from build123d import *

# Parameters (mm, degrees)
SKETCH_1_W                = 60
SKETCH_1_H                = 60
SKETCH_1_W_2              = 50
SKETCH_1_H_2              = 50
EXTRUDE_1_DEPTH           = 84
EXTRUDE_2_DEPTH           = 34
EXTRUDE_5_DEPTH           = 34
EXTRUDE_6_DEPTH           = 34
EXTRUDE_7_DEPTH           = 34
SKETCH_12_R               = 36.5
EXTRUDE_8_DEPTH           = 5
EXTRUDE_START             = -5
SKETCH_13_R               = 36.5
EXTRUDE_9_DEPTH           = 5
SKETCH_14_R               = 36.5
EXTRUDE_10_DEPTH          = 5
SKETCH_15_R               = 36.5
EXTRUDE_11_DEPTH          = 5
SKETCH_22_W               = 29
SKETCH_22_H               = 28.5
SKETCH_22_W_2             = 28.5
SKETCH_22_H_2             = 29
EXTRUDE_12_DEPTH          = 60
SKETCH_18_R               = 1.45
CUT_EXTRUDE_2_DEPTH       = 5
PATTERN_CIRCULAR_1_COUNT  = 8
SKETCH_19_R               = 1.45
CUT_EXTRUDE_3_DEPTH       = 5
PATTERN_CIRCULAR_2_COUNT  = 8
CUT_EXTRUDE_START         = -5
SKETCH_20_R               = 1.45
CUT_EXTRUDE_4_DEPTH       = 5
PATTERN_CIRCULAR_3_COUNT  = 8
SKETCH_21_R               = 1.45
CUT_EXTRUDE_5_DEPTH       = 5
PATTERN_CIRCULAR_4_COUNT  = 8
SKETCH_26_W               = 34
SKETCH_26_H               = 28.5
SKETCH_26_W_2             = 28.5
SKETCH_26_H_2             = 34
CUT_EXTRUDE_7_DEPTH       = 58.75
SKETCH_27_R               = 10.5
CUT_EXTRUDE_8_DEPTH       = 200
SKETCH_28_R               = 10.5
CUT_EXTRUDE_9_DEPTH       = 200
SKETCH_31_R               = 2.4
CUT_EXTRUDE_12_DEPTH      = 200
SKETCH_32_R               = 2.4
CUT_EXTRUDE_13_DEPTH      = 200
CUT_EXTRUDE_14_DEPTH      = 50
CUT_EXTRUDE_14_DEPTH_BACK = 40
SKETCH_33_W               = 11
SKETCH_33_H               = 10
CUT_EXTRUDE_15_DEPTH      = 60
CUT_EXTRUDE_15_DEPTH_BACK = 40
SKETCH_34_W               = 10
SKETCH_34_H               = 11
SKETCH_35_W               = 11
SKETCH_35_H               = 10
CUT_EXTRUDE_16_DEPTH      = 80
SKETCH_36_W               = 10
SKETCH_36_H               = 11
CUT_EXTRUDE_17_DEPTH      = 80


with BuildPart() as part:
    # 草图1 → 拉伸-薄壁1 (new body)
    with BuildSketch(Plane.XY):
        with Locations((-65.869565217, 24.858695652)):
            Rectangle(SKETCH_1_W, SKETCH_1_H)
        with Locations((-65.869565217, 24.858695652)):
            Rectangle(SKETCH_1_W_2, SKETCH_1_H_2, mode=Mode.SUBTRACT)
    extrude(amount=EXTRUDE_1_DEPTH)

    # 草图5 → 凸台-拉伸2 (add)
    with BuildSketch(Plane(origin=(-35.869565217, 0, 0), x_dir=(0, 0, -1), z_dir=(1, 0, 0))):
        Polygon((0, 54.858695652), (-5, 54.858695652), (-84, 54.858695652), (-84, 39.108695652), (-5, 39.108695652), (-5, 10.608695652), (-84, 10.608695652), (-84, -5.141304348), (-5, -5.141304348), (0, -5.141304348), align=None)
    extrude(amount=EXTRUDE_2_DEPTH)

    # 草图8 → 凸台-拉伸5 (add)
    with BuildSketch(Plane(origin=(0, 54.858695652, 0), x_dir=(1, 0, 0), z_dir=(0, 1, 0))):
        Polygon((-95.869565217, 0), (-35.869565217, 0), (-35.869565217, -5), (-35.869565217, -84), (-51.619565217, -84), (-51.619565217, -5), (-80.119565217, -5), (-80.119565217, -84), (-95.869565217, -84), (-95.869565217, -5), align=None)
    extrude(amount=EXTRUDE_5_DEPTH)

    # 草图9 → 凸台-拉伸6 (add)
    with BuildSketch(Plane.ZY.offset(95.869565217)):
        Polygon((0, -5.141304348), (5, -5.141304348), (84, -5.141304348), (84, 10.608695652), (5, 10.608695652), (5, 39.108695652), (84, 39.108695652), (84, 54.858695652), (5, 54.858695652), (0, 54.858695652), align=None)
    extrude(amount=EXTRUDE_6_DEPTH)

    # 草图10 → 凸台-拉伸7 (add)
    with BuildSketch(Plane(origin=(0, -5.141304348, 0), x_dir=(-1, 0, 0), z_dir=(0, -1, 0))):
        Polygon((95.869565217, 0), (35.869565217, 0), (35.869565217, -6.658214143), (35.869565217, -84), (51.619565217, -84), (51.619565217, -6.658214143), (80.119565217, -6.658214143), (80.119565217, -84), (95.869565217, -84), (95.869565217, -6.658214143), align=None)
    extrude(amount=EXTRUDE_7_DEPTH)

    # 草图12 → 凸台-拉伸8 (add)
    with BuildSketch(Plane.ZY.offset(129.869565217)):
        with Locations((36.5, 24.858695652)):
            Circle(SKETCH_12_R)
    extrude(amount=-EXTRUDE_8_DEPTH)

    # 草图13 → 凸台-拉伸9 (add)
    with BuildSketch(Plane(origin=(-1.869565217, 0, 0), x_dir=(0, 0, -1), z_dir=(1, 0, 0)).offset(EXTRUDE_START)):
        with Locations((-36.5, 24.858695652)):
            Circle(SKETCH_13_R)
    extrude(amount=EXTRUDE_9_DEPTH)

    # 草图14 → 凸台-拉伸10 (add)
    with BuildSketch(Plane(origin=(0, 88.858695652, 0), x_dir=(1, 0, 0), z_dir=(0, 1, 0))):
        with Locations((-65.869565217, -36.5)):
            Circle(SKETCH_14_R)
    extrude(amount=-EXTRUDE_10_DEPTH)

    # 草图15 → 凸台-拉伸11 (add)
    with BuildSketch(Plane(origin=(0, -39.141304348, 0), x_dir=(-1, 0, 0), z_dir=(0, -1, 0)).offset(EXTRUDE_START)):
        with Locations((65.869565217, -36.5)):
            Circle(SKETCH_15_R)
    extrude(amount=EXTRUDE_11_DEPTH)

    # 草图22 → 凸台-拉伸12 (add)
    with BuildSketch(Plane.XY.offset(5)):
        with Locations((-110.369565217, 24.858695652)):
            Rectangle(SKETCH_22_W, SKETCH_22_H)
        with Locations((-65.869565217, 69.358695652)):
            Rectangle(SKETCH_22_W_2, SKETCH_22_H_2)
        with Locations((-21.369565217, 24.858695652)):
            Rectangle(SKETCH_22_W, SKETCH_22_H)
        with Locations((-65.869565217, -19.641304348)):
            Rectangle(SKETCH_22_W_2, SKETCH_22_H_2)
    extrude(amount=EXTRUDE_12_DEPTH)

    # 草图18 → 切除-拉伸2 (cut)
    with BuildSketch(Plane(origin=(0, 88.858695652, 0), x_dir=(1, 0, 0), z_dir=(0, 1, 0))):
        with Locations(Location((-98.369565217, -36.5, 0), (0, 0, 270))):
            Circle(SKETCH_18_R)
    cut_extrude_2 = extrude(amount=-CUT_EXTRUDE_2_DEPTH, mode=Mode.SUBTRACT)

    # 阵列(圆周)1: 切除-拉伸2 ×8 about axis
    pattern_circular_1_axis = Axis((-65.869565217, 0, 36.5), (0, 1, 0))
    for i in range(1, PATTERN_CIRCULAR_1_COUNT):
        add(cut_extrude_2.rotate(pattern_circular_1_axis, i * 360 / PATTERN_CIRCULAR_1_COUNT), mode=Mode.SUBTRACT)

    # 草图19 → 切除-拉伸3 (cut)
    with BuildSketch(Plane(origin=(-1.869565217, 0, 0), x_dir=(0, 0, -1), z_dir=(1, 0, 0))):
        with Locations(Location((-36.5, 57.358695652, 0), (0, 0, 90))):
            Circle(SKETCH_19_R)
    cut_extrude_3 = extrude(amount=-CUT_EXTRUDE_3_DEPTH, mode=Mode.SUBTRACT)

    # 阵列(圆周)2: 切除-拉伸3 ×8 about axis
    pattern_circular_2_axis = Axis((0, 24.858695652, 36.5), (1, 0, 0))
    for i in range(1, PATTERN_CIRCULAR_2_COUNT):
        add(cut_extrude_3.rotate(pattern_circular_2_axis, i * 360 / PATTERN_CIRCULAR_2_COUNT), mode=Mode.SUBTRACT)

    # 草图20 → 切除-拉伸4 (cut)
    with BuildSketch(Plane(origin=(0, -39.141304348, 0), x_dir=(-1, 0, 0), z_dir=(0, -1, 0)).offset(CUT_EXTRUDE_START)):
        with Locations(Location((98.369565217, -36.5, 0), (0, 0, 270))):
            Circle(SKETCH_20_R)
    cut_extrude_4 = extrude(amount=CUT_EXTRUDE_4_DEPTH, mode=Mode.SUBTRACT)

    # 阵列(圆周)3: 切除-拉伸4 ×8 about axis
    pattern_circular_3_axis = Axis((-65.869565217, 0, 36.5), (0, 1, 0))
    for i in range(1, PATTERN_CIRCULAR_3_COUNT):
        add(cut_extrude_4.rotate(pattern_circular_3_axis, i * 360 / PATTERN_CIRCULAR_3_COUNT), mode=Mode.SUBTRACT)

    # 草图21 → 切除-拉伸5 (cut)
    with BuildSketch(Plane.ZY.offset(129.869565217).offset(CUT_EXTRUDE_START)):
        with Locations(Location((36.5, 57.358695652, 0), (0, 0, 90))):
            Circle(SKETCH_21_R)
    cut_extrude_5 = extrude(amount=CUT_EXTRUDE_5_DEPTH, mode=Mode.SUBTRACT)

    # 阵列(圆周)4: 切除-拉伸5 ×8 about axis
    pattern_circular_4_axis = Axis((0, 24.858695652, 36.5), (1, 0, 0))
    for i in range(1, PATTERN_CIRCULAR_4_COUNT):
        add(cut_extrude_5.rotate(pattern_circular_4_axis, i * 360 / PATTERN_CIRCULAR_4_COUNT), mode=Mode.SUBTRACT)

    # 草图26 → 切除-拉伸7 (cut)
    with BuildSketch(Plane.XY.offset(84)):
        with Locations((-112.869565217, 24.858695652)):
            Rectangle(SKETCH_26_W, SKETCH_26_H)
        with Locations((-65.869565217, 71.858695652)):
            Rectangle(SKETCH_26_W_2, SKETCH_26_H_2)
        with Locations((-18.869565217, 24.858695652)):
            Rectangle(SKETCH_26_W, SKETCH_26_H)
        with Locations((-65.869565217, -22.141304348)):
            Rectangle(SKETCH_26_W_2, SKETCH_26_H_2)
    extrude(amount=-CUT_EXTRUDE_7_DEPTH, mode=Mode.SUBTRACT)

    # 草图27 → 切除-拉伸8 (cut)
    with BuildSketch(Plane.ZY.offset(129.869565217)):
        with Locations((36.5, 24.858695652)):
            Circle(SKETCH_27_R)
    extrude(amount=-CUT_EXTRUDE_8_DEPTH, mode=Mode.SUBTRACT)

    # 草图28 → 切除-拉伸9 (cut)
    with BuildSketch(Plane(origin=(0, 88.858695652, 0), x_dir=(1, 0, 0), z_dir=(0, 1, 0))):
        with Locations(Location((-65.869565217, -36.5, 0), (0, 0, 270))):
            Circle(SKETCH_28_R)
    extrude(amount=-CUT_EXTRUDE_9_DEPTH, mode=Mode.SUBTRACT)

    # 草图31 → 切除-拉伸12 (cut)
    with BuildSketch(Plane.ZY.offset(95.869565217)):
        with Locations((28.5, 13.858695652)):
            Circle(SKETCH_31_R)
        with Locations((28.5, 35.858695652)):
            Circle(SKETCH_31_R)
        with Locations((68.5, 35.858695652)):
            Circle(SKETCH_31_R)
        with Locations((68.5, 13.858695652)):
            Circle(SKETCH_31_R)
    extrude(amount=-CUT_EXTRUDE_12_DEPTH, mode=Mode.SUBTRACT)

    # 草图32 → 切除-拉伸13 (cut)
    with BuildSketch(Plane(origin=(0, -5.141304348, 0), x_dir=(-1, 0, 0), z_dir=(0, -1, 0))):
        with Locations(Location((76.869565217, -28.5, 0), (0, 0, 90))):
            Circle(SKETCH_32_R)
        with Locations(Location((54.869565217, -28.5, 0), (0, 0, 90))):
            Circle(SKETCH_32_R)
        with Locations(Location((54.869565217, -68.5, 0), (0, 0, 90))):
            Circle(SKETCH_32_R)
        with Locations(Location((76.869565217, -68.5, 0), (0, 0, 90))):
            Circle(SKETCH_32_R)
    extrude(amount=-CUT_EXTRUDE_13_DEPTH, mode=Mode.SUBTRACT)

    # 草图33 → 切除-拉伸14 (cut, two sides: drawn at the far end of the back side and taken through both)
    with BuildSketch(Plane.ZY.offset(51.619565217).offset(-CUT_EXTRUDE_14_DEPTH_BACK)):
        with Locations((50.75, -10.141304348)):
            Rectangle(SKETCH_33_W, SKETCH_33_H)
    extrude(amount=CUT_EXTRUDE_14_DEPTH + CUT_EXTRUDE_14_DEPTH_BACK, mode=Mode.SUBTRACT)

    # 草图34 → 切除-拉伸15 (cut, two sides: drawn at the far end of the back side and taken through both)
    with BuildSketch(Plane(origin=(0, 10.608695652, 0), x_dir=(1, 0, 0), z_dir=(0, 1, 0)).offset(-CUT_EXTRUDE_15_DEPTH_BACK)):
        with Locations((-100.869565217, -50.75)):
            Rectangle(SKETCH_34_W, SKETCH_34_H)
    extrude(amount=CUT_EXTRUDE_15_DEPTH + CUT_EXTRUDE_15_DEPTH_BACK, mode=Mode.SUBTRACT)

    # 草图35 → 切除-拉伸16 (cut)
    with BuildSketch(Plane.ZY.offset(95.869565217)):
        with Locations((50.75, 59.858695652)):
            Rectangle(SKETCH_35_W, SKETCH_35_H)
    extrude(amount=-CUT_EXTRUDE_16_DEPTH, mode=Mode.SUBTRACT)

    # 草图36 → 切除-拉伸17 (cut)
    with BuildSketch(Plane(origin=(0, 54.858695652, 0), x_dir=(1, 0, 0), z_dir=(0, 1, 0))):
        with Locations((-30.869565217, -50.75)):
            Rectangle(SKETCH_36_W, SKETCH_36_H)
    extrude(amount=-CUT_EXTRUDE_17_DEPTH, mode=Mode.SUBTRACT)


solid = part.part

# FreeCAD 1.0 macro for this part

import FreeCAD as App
import Part
import Sketcher
from FreeCAD import Vector
Q = App.Units.Quantity

doc = App.newDocument("Part")
body = doc.addObject("PartDesign::Body", "Body")

sketch1 = body.newObject("Sketcher::SketchObject", "Sketch")
sketch1.AttachmentSupport = (doc.getObject("XY_Plane"), [""])
sketch1.MapMode = "FlatFace"
sketch1.addGeometry(Part.LineSegment(Vector(-96, 55, 0), Vector(-96, -5, 0)), False)
sketch1.addGeometry(Part.LineSegment(Vector(-96, -5, 0), Vector(-36, -5, 0)), False)
sketch1.addGeometry(Part.LineSegment(Vector(-36, -5, 0), Vector(-36, 55, 0)), False)
sketch1.addGeometry(Part.LineSegment(Vector(-36, 55, 0), Vector(-96, 55, 0)), False)
sketch1.addGeometry(Part.LineSegment(Vector(-41, 0, 0), Vector(-91, 0, 0)), False)
sketch1.addGeometry(Part.LineSegment(Vector(-91, 0, 0), Vector(-91, 50, 0)), False)
sketch1.addGeometry(Part.LineSegment(Vector(-91, 50, 0), Vector(-41, 50, 0)), False)
sketch1.addGeometry(Part.LineSegment(Vector(-41, 50, 0), Vector(-41, 0, 0)), False)
sketch1.addConstraint(Sketcher.Constraint("Coincident", 0, 2, 1, 1))
sketch1.addConstraint(Sketcher.Constraint("Coincident", 1, 2, 2, 1))
sketch1.addConstraint(Sketcher.Constraint("Coincident", 2, 2, 3, 1))
sketch1.addConstraint(Sketcher.Constraint("Coincident", 3, 2, 0, 1))
sketch1.addConstraint(Sketcher.Constraint("Coincident", 4, 2, 5, 1))
sketch1.addConstraint(Sketcher.Constraint("Coincident", 5, 2, 6, 1))
sketch1.addConstraint(Sketcher.Constraint("Coincident", 6, 2, 7, 1))
sketch1.addConstraint(Sketcher.Constraint("Coincident", 7, 2, 4, 1))
sketch1.addConstraint(Sketcher.Constraint("Vertical", 0))
sketch1.addConstraint(Sketcher.Constraint("Horizontal", 1))
sketch1.addConstraint(Sketcher.Constraint("Vertical", 2))
sketch1.addConstraint(Sketcher.Constraint("Horizontal", 3))
sketch1.addConstraint(Sketcher.Constraint("Horizontal", 4))
sketch1.addConstraint(Sketcher.Constraint("Vertical", 5))
sketch1.addConstraint(Sketcher.Constraint("Horizontal", 6))
sketch1.addConstraint(Sketcher.Constraint("Vertical", 7))
sketch1.addConstraint(Sketcher.Constraint("Equal", 3, 0))
sketch1.addConstraint(Sketcher.Constraint("Equal", 6, 5))
sketch1.addConstraint(Sketcher.Constraint("DistanceX", 1, 1, 1, 2, Q("60 mm")))
sketch1.addConstraint(Sketcher.Constraint("DistanceX", 4, 2, 4, 1, Q("50 mm")))
sketch1.addConstraint(Sketcher.Constraint("DistanceX", 0, 2, 4, 2, Q("5 mm")))
sketch1.addConstraint(Sketcher.Constraint("DistanceY", 0, 2, 4, 2, Q("5 mm")))
sketch1.addConstraint(Sketcher.Constraint("DistanceX", 0, 2, -1, 1, Q("95.869565 mm")))
sketch1.addConstraint(Sketcher.Constraint("DistanceY", 0, 2, -1, 1, Q("5.141304 mm")))
pad1 = body.newObject("PartDesign::Pad", "Pad")
pad1.Profile = sketch1
pad1.Length = 84

sketch2 = body.newObject("Sketcher::SketchObject", "Sketch001")
sketch2.AttachmentSupport = (doc.getObject("YZ_Plane"), [""])
sketch2.MapMode = "FlatFace"
sketch2.AttachmentOffset = App.Placement(Vector(0, 0, -35.869565), App.Rotation())
sketch2.addGeometry(Part.LineSegment(Vector(55, 0, 0), Vector(55, 84, 0)), False)
sketch2.addGeometry(Part.LineSegment(Vector(55, 84, 0), Vector(39, 84, 0)), False)
sketch2.addGeometry(Part.LineSegment(Vector(39, 84, 0), Vector(39, 5, 0)), False)
sketch2.addGeometry(Part.LineSegment(Vector(39, 5, 0), Vector(11, 5, 0)), False)
sketch2.addGeometry(Part.LineSegment(Vector(11, 5, 0), Vector(11, 84, 0)), False)
sketch2.addGeometry(Part.LineSegment(Vector(11, 84, 0), Vector(-5, 84, 0)), False)
sketch2.addGeometry(Part.LineSegment(Vector(-5, 84, 0), Vector(-5, 0, 0)), False)
sketch2.addGeometry(Part.LineSegment(Vector(-5, 0, 0), Vector(55, 0, 0)), False)
sketch2.addConstraint(Sketcher.Constraint("Coincident", 0, 2, 1, 1))
sketch2.addConstraint(Sketcher.Constraint("Coincident", 1, 2, 2, 1))
sketch2.addConstraint(Sketcher.Constraint("Coincident", 2, 2, 3, 1))
sketch2.addConstraint(Sketcher.Constraint("Coincident", 3, 2, 4, 1))
sketch2.addConstraint(Sketcher.Constraint("Coincident", 4, 2, 5, 1))
sketch2.addConstraint(Sketcher.Constraint("Coincident", 5, 2, 6, 1))
sketch2.addConstraint(Sketcher.Constraint("Coincident", 6, 2, 7, 1))
sketch2.addConstraint(Sketcher.Constraint("Coincident", 7, 2, 0, 1))
sketch2.addConstraint(Sketcher.Constraint("Vertical", 0))
sketch2.addConstraint(Sketcher.Constraint("Horizontal", 1))
sketch2.addConstraint(Sketcher.Constraint("Vertical", 2))
sketch2.addConstraint(Sketcher.Constraint("Horizontal", 3))
sketch2.addConstraint(Sketcher.Constraint("Vertical", 4))
sketch2.addConstraint(Sketcher.Constraint("Horizontal", 5))
sketch2.addConstraint(Sketcher.Constraint("Vertical", 6))
sketch2.addConstraint(Sketcher.Constraint("Horizontal", 7))
sketch2.addConstraint(Sketcher.Constraint("PointOnObject", 6, 2, -1))
sketch2.addConstraint(Sketcher.Constraint("Horizontal", 1, 2, 4, 2))
sketch2.addConstraint(Sketcher.Constraint("Equal", 1, 5))
sketch2.addConstraint(Sketcher.Constraint("DistanceX", 7, 1, 7, 2, Q("60 mm")))
sketch2.addConstraint(Sketcher.Constraint("DistanceY", 0, 1, 0, 2, Q("84 mm")))
sketch2.addConstraint(Sketcher.Constraint("DistanceY", 2, 2, 2, 1, Q("79 mm")))
sketch2.addConstraint(Sketcher.Constraint("DistanceX", 3, 2, 3, 1, Q("28.5 mm")))
sketch2.addConstraint(Sketcher.Constraint("DistanceX", -1, 1, 0, 2, Q("54.858696 mm")))
pad2 = body.newObject("PartDesign::Pad", "Pad001")
pad2.Profile = sketch2
pad2.Length = 34

sketch3 = body.newObject("Sketcher::SketchObject", "Sketch002")
sketch3.AttachmentSupport = (doc.getObject("XZ_Plane"), [""])
sketch3.MapMode = "FlatFace"
sketch3.AttachmentOffset = App.Placement(Vector(0, 0, -54.858696), App.Rotation())
sketch3.addGeometry(Part.LineSegment(Vector(-36, 0, 0), Vector(-96, 0, 0)), False)
sketch3.addGeometry(Part.LineSegment(Vector(-96, 0, 0), Vector(-96, 84, 0)), False)
sketch3.addGeometry(Part.LineSegment(Vector(-96, 84, 0), Vector(-80, 84, 0)), False)
sketch3.addGeometry(Part.LineSegment(Vector(-80, 84, 0), Vector(-80, 5, 0)), False)
sketch3.addGeometry(Part.LineSegment(Vector(-80, 5, 0), Vector(-52, 5, 0)), False)
sketch3.addGeometry(Part.LineSegment(Vector(-52, 5, 0), Vector(-52, 84, 0)), False)
sketch3.addGeometry(Part.LineSegment(Vector(-52, 84, 0), Vector(-36, 84, 0)), False)
sketch3.addGeometry(Part.LineSegment(Vector(-36, 84, 0), Vector(-36, 0, 0)), False)
sketch3.addConstraint(Sketcher.Constraint("Coincident", 0, 2, 1, 1))
sketch3.addConstraint(Sketcher.Constraint("Coincident", 1, 2, 2, 1))
sketch3.addConstraint(Sketcher.Constraint("Coincident", 2, 2, 3, 1))
sketch3.addConstraint(Sketcher.Constraint("Coincident", 3, 2, 4, 1))
sketch3.addConstraint(Sketcher.Constraint("Coincident", 4, 2, 5, 1))
sketch3.addConstraint(Sketcher.Constraint("Coincident", 5, 2, 6, 1))
sketch3.addConstraint(Sketcher.Constraint("Coincident", 6, 2, 7, 1))
sketch3.addConstraint(Sketcher.Constraint("Coincident", 7, 2, 0, 1))
sketch3.addConstraint(Sketcher.Constraint("Horizontal", 0))
sketch3.addConstraint(Sketcher.Constraint("Vertical", 1))
sketch3.addConstraint(Sketcher.Constraint("Horizontal", 2))
sketch3.addConstraint(Sketcher.Constraint("Vertical", 3))
sketch3.addConstraint(Sketcher.Constraint("Horizontal", 4))
sketch3.addConstraint(Sketcher.Constraint("Vertical", 5))
sketch3.addConstraint(Sketcher.Constraint("Horizontal", 6))
sketch3.addConstraint(Sketcher.Constraint("Vertical", 7))
sketch3.addConstraint(Sketcher.Constraint("PointOnObject", 0, 2, -1))
sketch3.addConstraint(Sketcher.Constraint("Horizontal", 2, 2, 5, 2))
sketch3.addConstraint(Sketcher.Constraint("Equal", 2, 6))
sketch3.addConstraint(Sketcher.Constraint("DistanceX", 0, 2, 0, 1, Q("60 mm")))
sketch3.addConstraint(Sketcher.Constraint("DistanceY", 1, 1, 1, 2, Q("84 mm")))
sketch3.addConstraint(Sketcher.Constraint("DistanceY", 3, 2, 3, 1, Q("79 mm")))
sketch3.addConstraint(Sketcher.Constraint("DistanceX", 4, 1, 4, 2, Q("28.5 mm")))
sketch3.addConstraint(Sketcher.Constraint("DistanceX", 0, 2, -1, 1, Q("95.869565 mm")))
pad3 = body.newObject("PartDesign::Pad", "Pad002")
pad3.Profile = sketch3
pad3.Length = 34
pad3.Reversed = True

sketch4 = body.newObject("Sketcher::SketchObject", "Sketch003")
sketch4.AttachmentSupport = (doc.getObject("YZ_Plane"), [""])
sketch4.MapMode = "FlatFace"
sketch4.AttachmentOffset = App.Placement(Vector(0, 0, -95.869565), App.Rotation())
sketch4.addGeometry(Part.LineSegment(Vector(-5, 0, 0), Vector(-5, 84, 0)), False)
sketch4.addGeometry(Part.LineSegment(Vector(-5, 84, 0), Vector(11, 84, 0)), False)
sketch4.addGeometry(Part.LineSegment(Vector(11, 84, 0), Vector(11, 5, 0)), False)
sketch4.addGeometry(Part.LineSegment(Vector(11, 5, 0), Vector(39, 5, 0)), False)
sketch4.addGeometry(Part.LineSegment(Vector(39, 5, 0), Vector(39, 84, 0)), False)
sketch4.addGeometry(Part.LineSegment(Vector(39, 84, 0), Vector(55, 84, 0)), False)
sketch4.addGeometry(Part.LineSegment(Vector(55, 84, 0), Vector(55, 0, 0)), False)
sketch4.addGeometry(Part.LineSegment(Vector(55, 0, 0), Vector(-5, 0, 0)), False)
sketch4.addConstraint(Sketcher.Constraint("Coincident", 0, 2, 1, 1))
sketch4.addConstraint(Sketcher.Constraint("Coincident", 1, 2, 2, 1))
sketch4.addConstraint(Sketcher.Constraint("Coincident", 2, 2, 3, 1))
sketch4.addConstraint(Sketcher.Constraint("Coincident", 3, 2, 4, 1))
sketch4.addConstraint(Sketcher.Constraint("Coincident", 4, 2, 5, 1))
sketch4.addConstraint(Sketcher.Constraint("Coincident", 5, 2, 6, 1))
sketch4.addConstraint(Sketcher.Constraint("Coincident", 6, 2, 7, 1))
sketch4.addConstraint(Sketcher.Constraint("Coincident", 7, 2, 0, 1))
sketch4.addConstraint(Sketcher.Constraint("Vertical", 0))
sketch4.addConstraint(Sketcher.Constraint("Horizontal", 1))
sketch4.addConstraint(Sketcher.Constraint("Vertical", 2))
sketch4.addConstraint(Sketcher.Constraint("Horizontal", 3))
sketch4.addConstraint(Sketcher.Constraint("Vertical", 4))
sketch4.addConstraint(Sketcher.Constraint("Horizontal", 5))
sketch4.addConstraint(Sketcher.Constraint("Vertical", 6))
sketch4.addConstraint(Sketcher.Constraint("Horizontal", 7))
sketch4.addConstraint(Sketcher.Constraint("PointOnObject", 6, 2, -1))
sketch4.addConstraint(Sketcher.Constraint("Horizontal", 1, 2, 4, 2))
sketch4.addConstraint(Sketcher.Constraint("Equal", 1, 5))
sketch4.addConstraint(Sketcher.Constraint("DistanceX", 7, 2, 7, 1, Q("60 mm")))
sketch4.addConstraint(Sketcher.Constraint("DistanceY", 0, 1, 0, 2, Q("84 mm")))
sketch4.addConstraint(Sketcher.Constraint("DistanceY", 2, 2, 2, 1, Q("79 mm")))
sketch4.addConstraint(Sketcher.Constraint("DistanceX", 3, 1, 3, 2, Q("28.5 mm")))
sketch4.addConstraint(Sketcher.Constraint("DistanceX", 0, 2, -1, 1, Q("5.141304 mm")))
pad4 = body.newObject("PartDesign::Pad", "Pad003")
pad4.Profile = sketch4
pad4.Length = 34
pad4.Reversed = True

sketch5 = body.newObject("Sketcher::SketchObject", "Sketch004")
sketch5.AttachmentSupport = (doc.getObject("XZ_Plane"), [""])
sketch5.MapMode = "FlatFace"
sketch5.AttachmentOffset = App.Placement(Vector(0, 0, 5.141304), App.Rotation())
sketch5.addGeometry(Part.LineSegment(Vector(-96, 0, 0), Vector(-36, 0, 0)), False)
sketch5.addGeometry(Part.LineSegment(Vector(-36, 0, 0), Vector(-36, 84, 0)), False)
sketch5.addGeometry(Part.LineSegment(Vector(-36, 84, 0), Vector(-52, 84, 0)), False)
sketch5.addGeometry(Part.LineSegment(Vector(-52, 84, 0), Vector(-52, 7, 0)), False)
sketch5.addGeometry(Part.LineSegment(Vector(-52, 7, 0), Vector(-80, 7, 0)), False)
sketch5.addGeometry(Part.LineSegment(Vector(-80, 7, 0), Vector(-80, 84, 0)), False)
sketch5.addGeometry(Part.LineSegment(Vector(-80, 84, 0), Vector(-96, 84, 0)), False)
sketch5.addGeometry(Part.LineSegment(Vector(-96, 84, 0), Vector(-96, 0, 0)), False)
sketch5.addConstraint(Sketcher.Constraint("Coincident", 0, 2, 1, 1))
sketch5.addConstraint(Sketcher.Constraint("Coincident", 1, 2, 2, 1))
sketch5.addConstraint(Sketcher.Constraint("Coincident", 2, 2, 3, 1))
sketch5.addConstraint(Sketcher.Constraint("Coincident", 3, 2, 4, 1))
sketch5.addConstraint(Sketcher.Constraint("Coincident", 4, 2, 5, 1))
sketch5.addConstraint(Sketcher.Constraint("Coincident", 5, 2, 6, 1))
sketch5.addConstraint(Sketcher.Constraint("Coincident", 6, 2, 7, 1))
sketch5.addConstraint(Sketcher.Constraint("Coincident", 7, 2, 0, 1))
sketch5.addConstraint(Sketcher.Constraint("Horizontal", 0))
sketch5.addConstraint(Sketcher.Constraint("Vertical", 1))
sketch5.addConstraint(Sketcher.Constraint("Horizontal", 2))
sketch5.addConstraint(Sketcher.Constraint("Vertical", 3))
sketch5.addConstraint(Sketcher.Constraint("Horizontal", 4))
sketch5.addConstraint(Sketcher.Constraint("Vertical", 5))
sketch5.addConstraint(Sketcher.Constraint("Horizontal", 6))
sketch5.addConstraint(Sketcher.Constraint("Vertical", 7))
sketch5.addConstraint(Sketcher.Constraint("PointOnObject", 0, 2, -1))
sketch5.addConstraint(Sketcher.Constraint("Horizontal", 2, 2, 5, 2))
sketch5.addConstraint(Sketcher.Constraint("Equal", 2, 6))
sketch5.addConstraint(Sketcher.Constraint("DistanceX", 0, 1, 0, 2, Q("60 mm")))
sketch5.addConstraint(Sketcher.Constraint("DistanceY", 1, 1, 1, 2, Q("84 mm")))
sketch5.addConstraint(Sketcher.Constraint("DistanceX", 4, 2, 4, 1, Q("28.5 mm")))
sketch5.addConstraint(Sketcher.Constraint("DistanceY", 3, 2, 3, 1, Q("77.341786 mm")))
sketch5.addConstraint(Sketcher.Constraint("DistanceX", 0, 2, -1, 1, Q("35.869565 mm")))
pad5 = body.newObject("PartDesign::Pad", "Pad004")
pad5.Profile = sketch5
pad5.Length = 34

sketch6 = body.newObject("Sketcher::SketchObject", "Sketch005")
sketch6.AttachmentSupport = (doc.getObject("YZ_Plane"), [""])
sketch6.MapMode = "FlatFace"
sketch6.AttachmentOffset = App.Placement(Vector(0, 0, -129.869565), App.Rotation())
sketch6.addGeometry(Part.Circle(Vector(25, 36, 0), Vector(0, 0, 1), 36), False)
sketch6.addConstraint(Sketcher.Constraint("Diameter", 0, Q("73 mm")))
sketch6.addConstraint(Sketcher.Constraint("DistanceY", -1, 1, 0, 3, Q("36.5 mm")))
sketch6.addConstraint(Sketcher.Constraint("DistanceX", -1, 1, 0, 3, Q("24.858696 mm")))
pad6 = body.newObject("PartDesign::Pad", "Pad005")
pad6.Profile = sketch6
pad6.Length = 5

sketch7 = body.newObject("Sketcher::SketchObject", "Sketch006")
sketch7.AttachmentSupport = (doc.getObject("YZ_Plane"), [""])
sketch7.MapMode = "FlatFace"
sketch7.AttachmentOffset = App.Placement(Vector(0, 0, -6.869565), App.Rotation())
sketch7.addGeometry(Part.Circle(Vector(25, 36, 0), Vector(0, 0, 1), 36), False)
sketch7.addConstraint(Sketcher.Constraint("Diameter", 0, Q("73 mm")))
sketch7.addConstraint(Sketcher.Constraint("DistanceY", -1, 1, 0, 3, Q("36.5 mm")))
sketch7.addConstraint(Sketcher.Constraint("DistanceX", -1, 1, 0, 3, Q("24.858696 mm")))
pad7 = body.newObject("PartDesign::Pad", "Pad006")
pad7.Profile = sketch7
pad7.Length = 5

sketch8 = body.newObject("Sketcher::SketchObject", "Sketch007")
sketch8.AttachmentSupport = (doc.getObject("XZ_Plane"), [""])
sketch8.MapMode = "FlatFace"
sketch8.AttachmentOffset = App.Placement(Vector(0, 0, -88.858696), App.Rotation())
sketch8.addGeometry(Part.Circle(Vector(-66, 36, 0), Vector(0, 0, 1), 36), False)
sketch8.addConstraint(Sketcher.Constraint("Diameter", 0, Q("73 mm")))
sketch8.addConstraint(Sketcher.Constraint("DistanceY", -1, 1, 0, 3, Q("36.5 mm")))
sketch8.addConstraint(Sketcher.Constraint("DistanceX", 0, 3, -1, 1, Q("65.869565 mm")))
pad8 = body.newObject("PartDesign::Pad", "Pad007")
pad8.Profile = sketch8
pad8.Length = 5

sketch9 = body.newObject("Sketcher::SketchObject", "Sketch008")
sketch9.AttachmentSupport = (doc.getObject("XZ_Plane"), [""])
sketch9.MapMode = "FlatFace"
sketch9.AttachmentOffset = App.Placement(Vector(0, 0, 34.141304), App.Rotation())
sketch9.addGeometry(Part.Circle(Vector(-66, 36, 0), Vector(0, 0, 1), 36), False)
sketch9.addConstraint(Sketcher.Constraint("Diameter", 0, Q("73 mm")))
sketch9.addConstraint(Sketcher.Constraint("DistanceY", -1, 1, 0, 3, Q("36.5 mm")))
sketch9.addConstraint(Sketcher.Constraint("DistanceX", 0, 3, -1, 1, Q("65.869565 mm")))
pad9 = body.newObject("PartDesign::Pad", "Pad008")
pad9.Profile = sketch9
pad9.Length = 5

sketch10 = body.newObject("Sketcher::SketchObject", "Sketch009")
sketch10.AttachmentSupport = (doc.getObject("XY_Plane"), [""])
sketch10.MapMode = "FlatFace"
sketch10.AttachmentOffset = App.Placement(Vector(0, 0, 5), App.Rotation())
sketch10.addGeometry(Part.LineSegment(Vector(-125, 39, 0), Vector(-125, 11, 0)), False)
sketch10.addGeometry(Part.LineSegment(Vector(-125, 11, 0), Vector(-96, 11, 0)), False)
sketch10.addGeometry(Part.LineSegment(Vector(-96, 11, 0), Vector(-96, 39, 0)), False)
sketch10.addGeometry(Part.LineSegment(Vector(-96, 39, 0), Vector(-125, 39, 0)), False)
sketch10.addGeometry(Part.LineSegment(Vector(-80, 84, 0), Vector(-80, 55, 0)), False)
sketch10.addGeometry(Part.LineSegment(Vector(-80, 55, 0), Vector(-52, 55, 0)), False)
sketch10.addGeometry(Part.LineSegment(Vector(-52, 55, 0), Vector(-52, 84, 0)), False)
sketch10.addGeometry(Part.LineSegment(Vector(-52, 84, 0), Vector(-80, 84, 0)), False)
sketch10.addGeometry(Part.LineSegment(Vector(-36, 39, 0), Vector(-36, 11, 0)), False)
sketch10.addGeometry(Part.LineSegment(Vector(-36, 11, 0), Vector(-7, 11, 0)), False)
sketch10.addGeometry(Part.LineSegment(Vector(-7, 11, 0), Vector(-7, 39, 0)), False)
sketch10.addGeometry(Part.LineSegment(Vector(-7, 39, 0), Vector(-36, 39, 0)), False)
sketch10.addGeometry(Part.LineSegment(Vector(-80, -5, 0), Vector(-80, -34, 0)), False)
sketch10.addGeometry(Part.LineSegment(Vector(-80, -34, 0), Vector(-52, -34, 0)), False)
sketch10.addGeometry(Part.LineSegment(Vector(-52, -34, 0), Vector(-52, -5, 0)), False)
sketch10.addGeometry(Part.LineSegment(Vector(-52, -5, 0), Vector(-80, -5, 0)), False)
sketch10.addConstraint(Sketcher.Constraint("Coincident", 0, 2, 1, 1))
sketch10.addConstraint(Sketcher.Constraint("Coincident", 1, 2, 2, 1))
sketch10.addConstraint(Sketcher.Constraint("Coincident", 2, 2, 3, 1))
sketch10.addConstraint(Sketcher.Constraint("Coincident", 3, 2, 0, 1))
sketch10.addConstraint(Sketcher.Constraint("Coincident", 4, 2, 5, 1))
sketch10.addConstraint(Sketcher.Constraint("Coincident", 5, 2, 6, 1))
sketch10.addConstraint(Sketcher.Constraint("Coincident", 6, 2, 7, 1))
sketch10.addConstraint(Sketcher.Constraint("Coincident", 7, 2, 4, 1))
sketch10.addConstraint(Sketcher.Constraint("Coincident", 8, 2, 9, 1))
sketch10.addConstraint(Sketcher.Constraint("Coincident", 9, 2, 10, 1))
sketch10.addConstraint(Sketcher.Constraint("Coincident", 10, 2, 11, 1))
sketch10.addConstraint(Sketcher.Constraint("Coincident", 11, 2, 8, 1))
sketch10.addConstraint(Sketcher.Constraint("Coincident", 12, 2, 13, 1))
sketch10.addConstraint(Sketcher.Constraint("Coincident", 13, 2, 14, 1))
sketch10.addConstraint(Sketcher.Constraint("Coincident", 14, 2, 15, 1))
sketch10.addConstraint(Sketcher.Constraint("Coincident", 15, 2, 12, 1))
sketch10.addConstraint(Sketcher.Constraint("Vertical", 0))
sketch10.addConstraint(Sketcher.Constraint("Horizontal", 1))
sketch10.addConstraint(Sketcher.Constraint("Vertical", 2))
sketch10.addConstraint(Sketcher.Constraint("Horizontal", 3))
sketch10.addConstraint(Sketcher.Constraint("Vertical", 4))
sketch10.addConstraint(Sketcher.Constraint("Horizontal", 5))
sketch10.addConstraint(Sketcher.Constraint("Vertical", 6))
sketch10.addConstraint(Sketcher.Constraint("Horizontal", 7))
sketch10.addConstraint(Sketcher.Constraint("Vertical", 8))
sketch10.addConstraint(Sketcher.Constraint("Horizontal", 9))
sketch10.addConstraint(Sketcher.Constraint("Vertical", 10))
sketch10.addConstraint(Sketcher.Constraint("Horizontal", 11))
sketch10.addConstraint(Sketcher.Constraint("Vertical", 12))
sketch10.addConstraint(Sketcher.Constraint("Horizontal", 13))
sketch10.addConstraint(Sketcher.Constraint("Vertical", 14))
sketch10.addConstraint(Sketcher.Constraint("Horizontal", 15))
sketch10.addConstraint(Sketcher.Constraint("Horizontal", 1, 2, 8, 2))
sketch10.addConstraint(Sketcher.Constraint("Horizontal", 3, 2, 10, 2))
sketch10.addConstraint(Sketcher.Constraint("Vertical", 7, 2, 12, 2))
sketch10.addConstraint(Sketcher.Constraint("Vertical", 6, 2, 13, 2))
sketch10.addConstraint(Sketcher.Constraint("Equal", 3, 9))
sketch10.addConstraint(Sketcher.Constraint("Equal", 15, 0))
sketch10.addConstraint(Sketcher.Constraint("Equal", 11, 4))
sketch10.addConstraint(Sketcher.Constraint("Equal", 6, 12))
sketch10.addConstraint(Sketcher.Constraint("DistanceX", 1, 1, 1, 2, Q("29 mm")))
sketch10.addConstraint(Sketcher.Constraint("DistanceX", 5, 1, 5, 2, Q("28.5 mm")))
sketch10.addConstraint(Sketcher.Constraint("DistanceX", 1, 2, 8, 2, Q("60 mm")))
sketch10.addConstraint(Sketcher.Constraint("DistanceX", 2, 2, 4, 2, Q("15.75 mm")))
sketch10.addConstraint(Sketcher.Constraint("DistanceY", 2, 2, 4, 2, Q("15.75 mm")))
sketch10.addConstraint(Sketcher.Constraint("DistanceY", 12, 2, 1, 2, Q("44.75 mm")))
sketch10.addConstraint(Sketcher.Constraint("DistanceX", 0, 2, -1, 1, Q("124.869565 mm")))
sketch10.addConstraint(Sketcher.Constraint("DistanceY", -1, 1, 0, 2, Q("10.608696 mm")))
pad10 = body.newObject("PartDesign::Pad", "Pad009")
pad10.Profile = sketch10
pad10.Length = 60

sketch11 = body.newObject("Sketcher::SketchObject", "Sketch010")
sketch11.AttachmentSupport = (doc.getObject("XZ_Plane"), [""])
sketch11.MapMode = "FlatFace"
sketch11.AttachmentOffset = App.Placement(Vector(0, 0, -88.858696), App.Rotation())
sketch11.addGeometry(Part.Circle(Vector(-98.4, 36.5, 0), Vector(0, 0, 1), 1.4), False)
sketch11.addConstraint(Sketcher.Constraint("Diameter", 0, Q("2.9 mm")))
sketch11.addConstraint(Sketcher.Constraint("DistanceY", -1, 1, 0, 3, Q("36.5 mm")))
sketch11.addConstraint(Sketcher.Constraint("DistanceX", 0, 3, -1, 1, Q("98.369565 mm")))
pocket1 = body.newObject("PartDesign::Pocket", "Pocket")
pocket1.Profile = sketch11
pocket1.Length = 5
pocket1.Reversed = True
doc.recompute()

datumline = body.newObject("PartDesign::Line", "DatumLine")
datumline.Placement = App.Placement(Vector(-65.869565, 0, 36.5), App.Rotation(Vector(0, 0, 1), Vector(0, 1, 0)))
polarpattern = body.newObject("PartDesign::PolarPattern", "PolarPattern")
polarpattern.Originals = [pocket1]
polarpattern.Axis = (datumline, [""])
polarpattern.Angle = 360
polarpattern.Occurrences = 8
body.Tip = polarpattern

sketch12 = body.newObject("Sketcher::SketchObject", "Sketch011")
sketch12.AttachmentSupport = (doc.getObject("YZ_Plane"), [""])
sketch12.MapMode = "FlatFace"
sketch12.AttachmentOffset = App.Placement(Vector(0, 0, -1.869565), App.Rotation())
sketch12.addGeometry(Part.Circle(Vector(57.4, 36.5, 0), Vector(0, 0, 1), 1.4), False)
sketch12.addConstraint(Sketcher.Constraint("Diameter", 0, Q("2.9 mm")))
sketch12.addConstraint(Sketcher.Constraint("DistanceY", -1, 1, 0, 3, Q("36.5 mm")))
sketch12.addConstraint(Sketcher.Constraint("DistanceX", -1, 1, 0, 3, Q("57.358696 mm")))
pocket2 = body.newObject("PartDesign::Pocket", "Pocket001")
pocket2.Profile = sketch12
pocket2.Length = 5
doc.recompute()

datumline2 = body.newObject("PartDesign::Line", "DatumLine001")
datumline2.Placement = App.Placement(Vector(0, 24.858696, 36.5), App.Rotation(Vector(0, 0, 1), Vector(1, 0, 0)))
polarpattern2 = body.newObject("PartDesign::PolarPattern", "PolarPattern001")
polarpattern2.Originals = [pocket2]
polarpattern2.Axis = (datumline2, [""])
polarpattern2.Angle = 360
polarpattern2.Occurrences = 8
body.Tip = polarpattern2

sketch13 = body.newObject("Sketcher::SketchObject", "Sketch012")
sketch13.AttachmentSupport = (doc.getObject("XZ_Plane"), [""])
sketch13.MapMode = "FlatFace"
sketch13.AttachmentOffset = App.Placement(Vector(0, 0, 34.141304), App.Rotation())
sketch13.addGeometry(Part.Circle(Vector(-98.4, 36.5, 0), Vector(0, 0, 1), 1.4), False)
sketch13.addConstraint(Sketcher.Constraint("Diameter", 0, Q("2.9 mm")))
sketch13.addConstraint(Sketcher.Constraint("DistanceY", -1, 1, 0, 3, Q("36.5 mm")))
sketch13.addConstraint(Sketcher.Constraint("DistanceX", 0, 3, -1, 1, Q("98.369565 mm")))
pocket3 = body.newObject("PartDesign::Pocket", "Pocket002")
pocket3.Profile = sketch13
pocket3.Length = 5
pocket3.Reversed = True
doc.recompute()

datumline3 = body.newObject("PartDesign::Line", "DatumLine002")
datumline3.Placement = App.Placement(Vector(-65.869565, 0, 36.5), App.Rotation(Vector(0, 0, 1), Vector(0, 1, 0)))
polarpattern3 = body.newObject("PartDesign::PolarPattern", "PolarPattern002")
polarpattern3.Originals = [pocket3]
polarpattern3.Axis = (datumline3, [""])
polarpattern3.Angle = 360
polarpattern3.Occurrences = 8
body.Tip = polarpattern3

sketch14 = body.newObject("Sketcher::SketchObject", "Sketch013")
sketch14.AttachmentSupport = (doc.getObject("YZ_Plane"), [""])
sketch14.MapMode = "FlatFace"
sketch14.AttachmentOffset = App.Placement(Vector(0, 0, -124.869565), App.Rotation())
sketch14.addGeometry(Part.Circle(Vector(57.4, 36.5, 0), Vector(0, 0, 1), 1.4), False)
sketch14.addConstraint(Sketcher.Constraint("Diameter", 0, Q("2.9 mm")))
sketch14.addConstraint(Sketcher.Constraint("DistanceY", -1, 1, 0, 3, Q("36.5 mm")))
sketch14.addConstraint(Sketcher.Constraint("DistanceX", -1, 1, 0, 3, Q("57.358696 mm")))
pocket4 = body.newObject("PartDesign::Pocket", "Pocket003")
pocket4.Profile = sketch14
pocket4.Length = 5
doc.recompute()

datumline4 = body.newObject("PartDesign::Line", "DatumLine003")
datumline4.Placement = App.Placement(Vector(0, 24.858696, 36.5), App.Rotation(Vector(0, 0, 1), Vector(1, 0, 0)))
polarpattern4 = body.newObject("PartDesign::PolarPattern", "PolarPattern003")
polarpattern4.Originals = [pocket4]
polarpattern4.Axis = (datumline4, [""])
polarpattern4.Angle = 360
polarpattern4.Occurrences = 8
body.Tip = polarpattern4

sketch15 = body.newObject("Sketcher::SketchObject", "Sketch014")
sketch15.AttachmentSupport = (doc.getObject("XY_Plane"), [""])
sketch15.MapMode = "FlatFace"
sketch15.AttachmentOffset = App.Placement(Vector(0, 0, 84), App.Rotation())
sketch15.addGeometry(Part.LineSegment(Vector(-130, 39, 0), Vector(-130, 11, 0)), False)
sketch15.addGeometry(Part.LineSegment(Vector(-130, 11, 0), Vector(-96, 11, 0)), False)
sketch15.addGeometry(Part.LineSegment(Vector(-96, 11, 0), Vector(-96, 39, 0)), False)
sketch15.addGeometry(Part.LineSegment(Vector(-96, 39, 0), Vector(-130, 39, 0)), False)
sketch15.addGeometry(Part.LineSegment(Vector(-80, 89, 0), Vector(-80, 55, 0)), False)
sketch15.addGeometry(Part.LineSegment(Vector(-80, 55, 0), Vector(-52, 55, 0)), False)
sketch15.addGeometry(Part.LineSegment(Vector(-52, 55, 0), Vector(-52, 89, 0)), False)
sketch15.addGeometry(Part.LineSegment(Vector(-52, 89, 0), Vector(-80, 89, 0)), False)
sketch15.addGeometry(Part.LineSegment(Vector(-36, 39, 0), Vector(-36, 11, 0)), False)
sketch15.addGeometry(Part.LineSegment(Vector(-36, 11, 0), Vector(-2, 11, 0)), False)
sketch15.addGeometry(Part.LineSegment(Vector(-2, 11, 0), Vector(-2, 39, 0)), False)
sketch15.addGeometry(Part.LineSegment(Vector(-2, 39, 0), Vector(-36, 39, 0)), False)
sketch15.addGeometry(Part.LineSegment(Vector(-80, -5, 0), Vector(-80, -39, 0)), False)
sketch15.addGeometry(Part.LineSegment(Vector(-80, -39, 0), Vector(-52, -39, 0)), False)
sketch15.addGeometry(Part.LineSegment(Vector(-52, -39, 0), Vector(-52, -5, 0)), False)
sketch15.addGeometry(Part.LineSegment(Vector(-52, -5, 0), Vector(-80, -5, 0)), False)
sketch15.addConstraint(Sketcher.Constraint("Coincident", 0, 2, 1, 1))
sketch15.addConstraint(Sketcher.Constraint("Coincident", 1, 2, 2, 1))
sketch15.addConstraint(Sketcher.Constraint("Coincident", 2, 2, 3, 1))
sketch15.addConstraint(Sketcher.Constraint("Coincident", 3, 2, 0, 1))
sketch15.addConstraint(Sketcher.Constraint("Coincident", 4, 2, 5, 1))
sketch15.addConstraint(Sketcher.Constraint("Coincident", 5, 2, 6, 1))
sketch15.addConstraint(Sketcher.Constraint("Coincident", 6, 2, 7, 1))
sketch15.addConstraint(Sketcher.Constraint("Coincident", 7, 2, 4, 1))
sketch15.addConstraint(Sketcher.Constraint("Coincident", 8, 2, 9, 1))
sketch15.addConstraint(Sketcher.Constraint("Coincident", 9, 2, 10, 1))
sketch15.addConstraint(Sketcher.Constraint("Coincident", 10, 2, 11, 1))
sketch15.addConstraint(Sketcher.Constraint("Coincident", 11, 2, 8, 1))
sketch15.addConstraint(Sketcher.Constraint("Coincident", 12, 2, 13, 1))
sketch15.addConstraint(Sketcher.Constraint("Coincident", 13, 2, 14, 1))
sketch15.addConstraint(Sketcher.Constraint("Coincident", 14, 2, 15, 1))
sketch15.addConstraint(Sketcher.Constraint("Coincident", 15, 2, 12, 1))
sketch15.addConstraint(Sketcher.Constraint("Vertical", 0))
sketch15.addConstraint(Sketcher.Constraint("Horizontal", 1))
sketch15.addConstraint(Sketcher.Constraint("Vertical", 2))
sketch15.addConstraint(Sketcher.Constraint("Horizontal", 3))
sketch15.addConstraint(Sketcher.Constraint("Vertical", 4))
sketch15.addConstraint(Sketcher.Constraint("Horizontal", 5))
sketch15.addConstraint(Sketcher.Constraint("Vertical", 6))
sketch15.addConstraint(Sketcher.Constraint("Horizontal", 7))
sketch15.addConstraint(Sketcher.Constraint("Vertical", 8))
sketch15.addConstraint(Sketcher.Constraint("Horizontal", 9))
sketch15.addConstraint(Sketcher.Constraint("Vertical", 10))
sketch15.addConstraint(Sketcher.Constraint("Horizontal", 11))
sketch15.addConstraint(Sketcher.Constraint("Vertical", 12))
sketch15.addConstraint(Sketcher.Constraint("Horizontal", 13))
sketch15.addConstraint(Sketcher.Constraint("Vertical", 14))
sketch15.addConstraint(Sketcher.Constraint("Horizontal", 15))
sketch15.addConstraint(Sketcher.Constraint("Horizontal", 1, 2, 8, 2))
sketch15.addConstraint(Sketcher.Constraint("Horizontal", 3, 2, 10, 2))
sketch15.addConstraint(Sketcher.Constraint("Vertical", 7, 2, 12, 2))
sketch15.addConstraint(Sketcher.Constraint("Vertical", 6, 2, 13, 2))
sketch15.addConstraint(Sketcher.Constraint("Equal", 3, 9))
sketch15.addConstraint(Sketcher.Constraint("Equal", 15, 0))
sketch15.addConstraint(Sketcher.Constraint("Equal", 11, 4))
sketch15.addConstraint(Sketcher.Constraint("Equal", 6, 12))
sketch15.addConstraint(Sketcher.Constraint("DistanceX", 1, 1, 1, 2, Q("34 mm")))
sketch15.addConstraint(Sketcher.Constraint("DistanceX", 5, 1, 5, 2, Q("28.5 mm")))
sketch15.addConstraint(Sketcher.Constraint("DistanceX", 1, 2, 8, 2, Q("60 mm")))
sketch15.addConstraint(Sketcher.Constraint("DistanceX", 2, 2, 4, 2, Q("15.75 mm")))
sketch15.addConstraint(Sketcher.Constraint("DistanceY", 2, 2, 4, 2, Q("15.75 mm")))
sketch15.addConstraint(Sketcher.Constraint("DistanceY", 12, 2, 1, 2, Q("49.75 mm")))
sketch15.addConstraint(Sketcher.Constraint("DistanceX", 0, 2, -1, 1, Q("129.869565 mm")))
sketch15.addConstraint(Sketcher.Constraint("DistanceY", -1, 1, 0, 2, Q("10.608696 mm")))
pocket5 = body.newObject("PartDesign::Pocket", "Pocket004")
pocket5.Profile = sketch15
pocket5.Length = 58.75

sketch16 = body.newObject("Sketcher::SketchObject", "Sketch015")
sketch16.AttachmentSupport = (doc.getObject("YZ_Plane"), [""])
sketch16.MapMode = "FlatFace"
sketch16.AttachmentOffset = App.Placement(Vector(0, 0, -129.869565), App.Rotation())
sketch16.addGeometry(Part.Circle(Vector(25, 36, 0), Vector(0, 0, 1), 10), False)
sketch16.addConstraint(Sketcher.Constraint("Diameter", 0, Q("21 mm")))
sketch16.addConstraint(Sketcher.Constraint("DistanceY", -1, 1, 0, 3, Q("36.5 mm")))
sketch16.addConstraint(Sketcher.Constraint("DistanceX", -1, 1, 0, 3, Q("24.858696 mm")))
pocket6 = body.newObject("PartDesign::Pocket", "Pocket005")
pocket6.Profile = sketch16
pocket6.Length = 200
pocket6.Reversed = True

sketch17 = body.newObject("Sketcher::SketchObject", "Sketch016")
sketch17.AttachmentSupport = (doc.getObject("XZ_Plane"), [""])
sketch17.MapMode = "FlatFace"
sketch17.AttachmentOffset = App.Placement(Vector(0, 0, -88.858696), App.Rotation())
sketch17.addGeometry(Part.Circle(Vector(-66, 36, 0), Vector(0, 0, 1), 10), False)
sketch17.addConstraint(Sketcher.Constraint("Diameter", 0, Q("21 mm")))
sketch17.addConstraint(Sketcher.Constraint("DistanceY", -1, 1, 0, 3, Q("36.5 mm")))
sketch17.addConstraint(Sketcher.Constraint("DistanceX", 0, 3, -1, 1, Q("65.869565 mm")))
pocket7 = body.newObject("PartDesign::Pocket", "Pocket006")
pocket7.Profile = sketch17
pocket7.Length = 200
pocket7.Reversed = True

sketch18 = body.newObject("Sketcher::SketchObject", "Sketch017")
sketch18.AttachmentSupport = (doc.getObject("YZ_Plane"), [""])
sketch18.MapMode = "FlatFace"
sketch18.AttachmentOffset = App.Placement(Vector(0, 0, -95.869565), App.Rotation())
sketch18.addGeometry(Part.Circle(Vector(13.9, 28.5, 0), Vector(0, 0, 1), 2.4), False)
sketch18.addGeometry(Part.Circle(Vector(35.9, 28.5, 0), Vector(0, 0, 1), 2.4), False)
sketch18.addGeometry(Part.Circle(Vector(35.9, 68.5, 0), Vector(0, 0, 1), 2.4), False)
sketch18.addGeometry(Part.Circle(Vector(13.9, 68.5, 0), Vector(0, 0, 1), 2.4), False)
sketch18.addConstraint(Sketcher.Constraint("Equal", 0, 1))
sketch18.addConstraint(Sketcher.Constraint("Equal", 1, 2))
sketch18.addConstraint(Sketcher.Constraint("Equal", 2, 3))
sketch18.addConstraint(Sketcher.Constraint("Horizontal", 0, 3, 1, 3))
sketch18.addConstraint(Sketcher.Constraint("Horizontal", 2, 3, 3, 3))
sketch18.addConstraint(Sketcher.Constraint("Vertical", 1, 3, 2, 3))
sketch18.addConstraint(Sketcher.Constraint("Vertical", 0, 3, 3, 3))
sketch18.addConstraint(Sketcher.Constraint("Diameter", 0, Q("4.8 mm")))
sketch18.addConstraint(Sketcher.Constraint("DistanceX", 0, 3, 1, 3, Q("22 mm")))
sketch18.addConstraint(Sketcher.Constraint("DistanceY", 1, 3, 2, 3, Q("40 mm")))
sketch18.addConstraint(Sketcher.Constraint("DistanceY", -1, 1, 0, 3, Q("28.5 mm")))
sketch18.addConstraint(Sketcher.Constraint("DistanceX", -1, 1, 0, 3, Q("13.858696 mm")))
pocket8 = body.newObject("PartDesign::Pocket", "Pocket007")
pocket8.Profile = sketch18
pocket8.Length = 200
pocket8.Reversed = True

sketch19 = body.newObject("Sketcher::SketchObject", "Sketch018")
sketch19.AttachmentSupport = (doc.getObject("XZ_Plane"), [""])
sketch19.MapMode = "FlatFace"
sketch19.AttachmentOffset = App.Placement(Vector(0, 0, 5.141304), App.Rotation())
sketch19.addGeometry(Part.Circle(Vector(-76.9, 28.5, 0), Vector(0, 0, 1), 2.4), False)
sketch19.addGeometry(Part.Circle(Vector(-54.9, 28.5, 0), Vector(0, 0, 1), 2.4), False)
sketch19.addGeometry(Part.Circle(Vector(-54.9, 68.5, 0), Vector(0, 0, 1), 2.4), False)
sketch19.addGeometry(Part.Circle(Vector(-76.9, 68.5, 0), Vector(0, 0, 1), 2.4), False)
sketch19.addConstraint(Sketcher.Constraint("Equal", 0, 1))
sketch19.addConstraint(Sketcher.Constraint("Equal", 1, 2))
sketch19.addConstraint(Sketcher.Constraint("Equal", 2, 3))
sketch19.addConstraint(Sketcher.Constraint("Horizontal", 0, 3, 1, 3))
sketch19.addConstraint(Sketcher.Constraint("Horizontal", 2, 3, 3, 3))
sketch19.addConstraint(Sketcher.Constraint("Vertical", 1, 3, 2, 3))
sketch19.addConstraint(Sketcher.Constraint("Vertical", 0, 3, 3, 3))
sketch19.addConstraint(Sketcher.Constraint("Diameter", 0, Q("4.8 mm")))
sketch19.addConstraint(Sketcher.Constraint("DistanceX", 0, 3, 1, 3, Q("22 mm")))
sketch19.addConstraint(Sketcher.Constraint("DistanceY", 1, 3, 2, 3, Q("40 mm")))
sketch19.addConstraint(Sketcher.Constraint("DistanceY", -1, 1, 0, 3, Q("28.5 mm")))
sketch19.addConstraint(Sketcher.Constraint("DistanceX", 0, 3, -1, 1, Q("76.869565 mm")))
pocket9 = body.newObject("PartDesign::Pocket", "Pocket008")
pocket9.Profile = sketch19
pocket9.Length = 200

sketch20 = body.newObject("Sketcher::SketchObject", "Sketch019")
sketch20.AttachmentSupport = (doc.getObject("YZ_Plane"), [""])
sketch20.MapMode = "FlatFace"
sketch20.AttachmentOffset = App.Placement(Vector(0, 0, -51.619565), App.Rotation())
sketch20.addGeometry(Part.LineSegment(Vector(-5, 45, 0), Vector(-15, 45, 0)), False)
sketch20.addGeometry(Part.LineSegment(Vector(-15, 45, 0), Vector(-15, 56, 0)), False)
sketch20.addGeometry(Part.LineSegment(Vector(-15, 56, 0), Vector(-5, 56, 0)), False)
sketch20.addGeometry(Part.LineSegment(Vector(-5, 56, 0), Vector(-5, 45, 0)), False)
sketch20.addConstraint(Sketcher.Constraint("Coincident", 0, 2, 1, 1))
sketch20.addConstraint(Sketcher.Constraint("Coincident", 1, 2, 2, 1))
sketch20.addConstraint(Sketcher.Constraint("Coincident", 2, 2, 3, 1))
sketch20.addConstraint(Sketcher.Constraint("Coincident", 3, 2, 0, 1))
sketch20.addConstraint(Sketcher.Constraint("Horizontal", 0))
sketch20.addConstraint(Sketcher.Constraint("Vertical", 1))
sketch20.addConstraint(Sketcher.Constraint("Horizontal", 2))
sketch20.addConstraint(Sketcher.Constraint("Vertical", 3))
sketch20.addConstraint(Sketcher.Constraint("DistanceX", 0, 2, 0, 1, Q("10 mm")))
sketch20.addConstraint(Sketcher.Constraint("DistanceY", 1, 1, 1, 2, Q("11 mm")))
sketch20.addConstraint(Sketcher.Constraint("DistanceY", -1, 1, 0, 2, Q("45.25 mm")))
sketch20.addConstraint(Sketcher.Constraint("DistanceX", 0, 2, -1, 1, Q("15.141304 mm")))
pocket10 = body.newObject("PartDesign::Pocket", "Pocket009")
pocket10.Profile = sketch20
pocket10.Type = "TwoLengths"
pocket10.Length = 50
pocket10.Length2 = 40

sketch21 = body.newObject("Sketcher::SketchObject", "Sketch020")
sketch21.AttachmentSupport = (doc.getObject("XZ_Plane"), [""])
sketch21.MapMode = "FlatFace"
sketch21.AttachmentOffset = App.Placement(Vector(0, 0, -10.608696), App.Rotation())
sketch21.addGeometry(Part.LineSegment(Vector(-106, 45, 0), Vector(-106, 56, 0)), False)
sketch21.addGeometry(Part.LineSegment(Vector(-106, 56, 0), Vector(-96, 56, 0)), False)
sketch21.addGeometry(Part.LineSegment(Vector(-96, 56, 0), Vector(-96, 45, 0)), False)
sketch21.addGeometry(Part.LineSegment(Vector(-96, 45, 0), Vector(-106, 45, 0)), False)
sketch21.addConstraint(Sketcher.Constraint("Coincident", 0, 2, 1, 1))
sketch21.addConstraint(Sketcher.Constraint("Coincident", 1, 2, 2, 1))
sketch21.addConstraint(Sketcher.Constraint("Coincident", 2, 2, 3, 1))
sketch21.addConstraint(Sketcher.Constraint("Coincident", 3, 2, 0, 1))
sketch21.addConstraint(Sketcher.Constraint("Vertical", 0))
sketch21.addConstraint(Sketcher.Constraint("Horizontal", 1))
sketch21.addConstraint(Sketcher.Constraint("Vertical", 2))
sketch21.addConstraint(Sketcher.Constraint("Horizontal", 3))
sketch21.addConstraint(Sketcher.Constraint("DistanceX", 1, 1, 1, 2, Q("10 mm")))
sketch21.addConstraint(Sketcher.Constraint("DistanceY", 0, 1, 0, 2, Q("11 mm")))
sketch21.addConstraint(Sketcher.Constraint("DistanceY", -1, 1, 0, 2, Q("56.25 mm")))
sketch21.addConstraint(Sketcher.Constraint("DistanceX", 0, 2, -1, 1, Q("105.869565 mm")))
pocket11 = body.newObject("PartDesign::Pocket", "Pocket010")
pocket11.Profile = sketch21
pocket11.Type = "TwoLengths"
pocket11.Length = 60
pocket11.Length2 = 40

sketch22 = body.newObject("Sketcher::SketchObject", "Sketch021")
sketch22.AttachmentSupport = (doc.getObject("YZ_Plane"), [""])
sketch22.MapMode = "FlatFace"
sketch22.AttachmentOffset = App.Placement(Vector(0, 0, -95.869565), App.Rotation())
sketch22.addGeometry(Part.LineSegment(Vector(65, 45, 0), Vector(55, 45, 0)), False)
sketch22.addGeometry(Part.LineSegment(Vector(55, 45, 0), Vector(55, 56, 0)), False)
sketch22.addGeometry(Part.LineSegment(Vector(55, 56, 0), Vector(65, 56, 0)), False)
sketch22.addGeometry(Part.LineSegment(Vector(65, 56, 0), Vector(65, 45, 0)), False)
sketch22.addConstraint(Sketcher.Constraint("Coincident", 0, 2, 1, 1))
sketch22.addConstraint(Sketcher.Constraint("Coincident", 1, 2, 2, 1))
sketch22.addConstraint(Sketcher.Constraint("Coincident", 2, 2, 3, 1))
sketch22.addConstraint(Sketcher.Constraint("Coincident", 3, 2, 0, 1))
sketch22.addConstraint(Sketcher.Constraint("Horizontal", 0))
sketch22.addConstraint(Sketcher.Constraint("Vertical", 1))
sketch22.addConstraint(Sketcher.Constraint("Horizontal", 2))
sketch22.addConstraint(Sketcher.Constraint("Vertical", 3))
sketch22.addConstraint(Sketcher.Constraint("DistanceX", 0, 2, 0, 1, Q("10 mm")))
sketch22.addConstraint(Sketcher.Constraint("DistanceY", 1, 1, 1, 2, Q("11 mm")))
sketch22.addConstraint(Sketcher.Constraint("DistanceY", -1, 1, 0, 2, Q("45.25 mm")))
sketch22.addConstraint(Sketcher.Constraint("DistanceX", -1, 1, 0, 2, Q("54.858696 mm")))
pocket12 = body.newObject("PartDesign::Pocket", "Pocket011")
pocket12.Profile = sketch22
pocket12.Length = 80
pocket12.Reversed = True

sketch23 = body.newObject("Sketcher::SketchObject", "Sketch022")
sketch23.AttachmentSupport = (doc.getObject("XZ_Plane"), [""])
sketch23.MapMode = "FlatFace"
sketch23.AttachmentOffset = App.Placement(Vector(0, 0, -54.858696), App.Rotation())
sketch23.addGeometry(Part.LineSegment(Vector(-36, 45, 0), Vector(-36, 56, 0)), False)
sketch23.addGeometry(Part.LineSegment(Vector(-36, 56, 0), Vector(-26, 56, 0)), False)
sketch23.addGeometry(Part.LineSegment(Vector(-26, 56, 0), Vector(-26, 45, 0)), False)
sketch23.addGeometry(Part.LineSegment(Vector(-26, 45, 0), Vector(-36, 45, 0)), False)
sketch23.addConstraint(Sketcher.Constraint("Coincident", 0, 2, 1, 1))
sketch23.addConstraint(Sketcher.Constraint("Coincident", 1, 2, 2, 1))
sketch23.addConstraint(Sketcher.Constraint("Coincident", 2, 2, 3, 1))
sketch23.addConstraint(Sketcher.Constraint("Coincident", 3, 2, 0, 1))
sketch23.addConstraint(Sketcher.Constraint("Vertical", 0))
sketch23.addConstraint(Sketcher.Constraint("Horizontal", 1))
sketch23.addConstraint(Sketcher.Constraint("Vertical", 2))
sketch23.addConstraint(Sketcher.Constraint("Horizontal", 3))
sketch23.addConstraint(Sketcher.Constraint("DistanceX", 1, 1, 1, 2, Q("10 mm")))
sketch23.addConstraint(Sketcher.Constraint("DistanceY", 0, 1, 0, 2, Q("11 mm")))
sketch23.addConstraint(Sketcher.Constraint("DistanceY", -1, 1, 0, 2, Q("56.25 mm")))
sketch23.addConstraint(Sketcher.Constraint("DistanceX", 0, 2, -1, 1, Q("35.869565 mm")))
pocket13 = body.newObject("PartDesign::Pocket", "Pocket012")
pocket13.Profile = sketch23
pocket13.Length = 80
pocket13.Reversed = True

doc.recompute()
